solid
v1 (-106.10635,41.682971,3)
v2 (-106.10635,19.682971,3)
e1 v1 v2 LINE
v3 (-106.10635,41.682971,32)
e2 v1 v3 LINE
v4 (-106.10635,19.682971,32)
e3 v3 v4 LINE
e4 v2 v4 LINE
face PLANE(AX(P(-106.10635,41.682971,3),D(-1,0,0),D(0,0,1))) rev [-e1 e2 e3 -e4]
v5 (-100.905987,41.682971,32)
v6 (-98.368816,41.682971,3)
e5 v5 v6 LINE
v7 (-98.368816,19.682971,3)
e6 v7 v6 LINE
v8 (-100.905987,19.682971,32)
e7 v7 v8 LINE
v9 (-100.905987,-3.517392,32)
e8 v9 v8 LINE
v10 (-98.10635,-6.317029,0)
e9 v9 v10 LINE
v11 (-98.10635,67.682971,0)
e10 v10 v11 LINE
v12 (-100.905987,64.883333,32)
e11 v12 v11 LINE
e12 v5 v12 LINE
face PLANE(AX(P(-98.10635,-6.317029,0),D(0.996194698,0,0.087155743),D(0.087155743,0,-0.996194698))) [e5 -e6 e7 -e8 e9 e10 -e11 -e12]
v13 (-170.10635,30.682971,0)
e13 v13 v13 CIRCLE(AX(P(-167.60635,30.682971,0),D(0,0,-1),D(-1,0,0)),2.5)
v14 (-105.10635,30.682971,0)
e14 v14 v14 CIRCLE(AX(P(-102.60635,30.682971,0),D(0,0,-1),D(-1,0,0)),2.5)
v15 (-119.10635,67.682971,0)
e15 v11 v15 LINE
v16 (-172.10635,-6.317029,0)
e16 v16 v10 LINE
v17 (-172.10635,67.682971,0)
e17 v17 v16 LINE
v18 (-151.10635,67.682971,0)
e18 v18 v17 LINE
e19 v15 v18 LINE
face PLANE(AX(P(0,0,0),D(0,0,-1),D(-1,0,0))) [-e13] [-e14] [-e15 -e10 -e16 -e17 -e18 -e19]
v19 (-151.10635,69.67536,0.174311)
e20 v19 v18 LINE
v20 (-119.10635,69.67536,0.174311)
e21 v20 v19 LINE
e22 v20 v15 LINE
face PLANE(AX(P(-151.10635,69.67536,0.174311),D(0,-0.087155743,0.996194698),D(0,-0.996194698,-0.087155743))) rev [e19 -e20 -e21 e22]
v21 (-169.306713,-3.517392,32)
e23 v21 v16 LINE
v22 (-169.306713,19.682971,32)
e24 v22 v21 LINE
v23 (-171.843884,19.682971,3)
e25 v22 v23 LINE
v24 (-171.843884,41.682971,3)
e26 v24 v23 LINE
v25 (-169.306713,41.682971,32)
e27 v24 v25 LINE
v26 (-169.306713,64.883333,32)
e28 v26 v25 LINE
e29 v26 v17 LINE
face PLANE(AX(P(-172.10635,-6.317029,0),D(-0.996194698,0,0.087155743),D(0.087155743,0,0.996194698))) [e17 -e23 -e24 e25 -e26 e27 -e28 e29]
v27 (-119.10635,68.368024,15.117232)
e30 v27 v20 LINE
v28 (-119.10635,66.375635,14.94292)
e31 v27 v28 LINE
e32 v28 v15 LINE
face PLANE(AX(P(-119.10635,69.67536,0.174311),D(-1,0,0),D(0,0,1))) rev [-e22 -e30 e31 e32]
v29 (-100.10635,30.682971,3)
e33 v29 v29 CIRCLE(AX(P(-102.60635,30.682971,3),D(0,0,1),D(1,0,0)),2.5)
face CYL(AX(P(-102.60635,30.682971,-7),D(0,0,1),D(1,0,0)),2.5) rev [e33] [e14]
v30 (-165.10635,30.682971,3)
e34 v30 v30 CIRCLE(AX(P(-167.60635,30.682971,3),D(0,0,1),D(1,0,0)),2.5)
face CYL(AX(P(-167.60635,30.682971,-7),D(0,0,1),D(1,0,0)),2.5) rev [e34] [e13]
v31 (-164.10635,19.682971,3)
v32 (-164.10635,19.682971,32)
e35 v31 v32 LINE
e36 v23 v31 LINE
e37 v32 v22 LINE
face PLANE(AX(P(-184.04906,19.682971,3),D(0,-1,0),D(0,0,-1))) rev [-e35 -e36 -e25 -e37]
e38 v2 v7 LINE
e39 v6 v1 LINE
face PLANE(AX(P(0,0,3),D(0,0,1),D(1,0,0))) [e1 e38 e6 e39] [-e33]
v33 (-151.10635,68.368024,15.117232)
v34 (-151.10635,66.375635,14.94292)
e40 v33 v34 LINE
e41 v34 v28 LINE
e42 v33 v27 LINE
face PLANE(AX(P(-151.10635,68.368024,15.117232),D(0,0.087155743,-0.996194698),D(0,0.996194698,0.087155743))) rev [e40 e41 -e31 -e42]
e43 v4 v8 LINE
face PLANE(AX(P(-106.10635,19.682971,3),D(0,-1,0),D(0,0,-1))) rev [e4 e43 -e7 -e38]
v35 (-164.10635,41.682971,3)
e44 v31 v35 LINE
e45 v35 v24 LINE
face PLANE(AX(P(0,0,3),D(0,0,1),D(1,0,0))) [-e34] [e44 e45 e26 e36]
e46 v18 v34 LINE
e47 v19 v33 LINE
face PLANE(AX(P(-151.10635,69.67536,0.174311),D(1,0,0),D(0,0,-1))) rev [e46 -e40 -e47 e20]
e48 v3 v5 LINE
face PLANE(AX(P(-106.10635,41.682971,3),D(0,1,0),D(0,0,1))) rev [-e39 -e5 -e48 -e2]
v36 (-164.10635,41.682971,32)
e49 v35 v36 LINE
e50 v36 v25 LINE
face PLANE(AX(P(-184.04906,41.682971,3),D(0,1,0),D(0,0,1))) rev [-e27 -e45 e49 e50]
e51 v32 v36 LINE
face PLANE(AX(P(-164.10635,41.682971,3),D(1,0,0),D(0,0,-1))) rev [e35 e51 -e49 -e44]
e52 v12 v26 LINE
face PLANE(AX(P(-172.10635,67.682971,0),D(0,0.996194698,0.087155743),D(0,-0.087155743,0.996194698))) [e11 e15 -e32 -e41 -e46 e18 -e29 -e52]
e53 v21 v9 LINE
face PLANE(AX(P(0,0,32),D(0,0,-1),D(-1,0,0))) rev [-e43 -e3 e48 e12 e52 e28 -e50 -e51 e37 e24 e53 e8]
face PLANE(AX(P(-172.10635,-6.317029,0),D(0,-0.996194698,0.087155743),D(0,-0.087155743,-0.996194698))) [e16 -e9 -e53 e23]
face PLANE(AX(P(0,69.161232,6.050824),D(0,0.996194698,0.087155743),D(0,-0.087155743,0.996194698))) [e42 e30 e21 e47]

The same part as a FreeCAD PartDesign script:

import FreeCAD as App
import Part
import Sketcher
from FreeCAD import Vector
Q = App.Units.Quantity

doc = App.newDocument("Part")
body = doc.addObject("PartDesign::Body", "Body")

# Sketch on XY plane
sketch1 = doc.addObject("Sketcher::SketchObject", "Sketch")
body.addObject(sketch1)
sketch1.AttachmentSupport = (doc.XY_Plane, [""])
sketch1.MapMode = "FlatFace"
sketch1.addGeometry([
    Part.LineSegment(Vector(-172.10635, 67.682971, 0), Vector(-172.10635, -6.317029, 0)),
    Part.LineSegment(Vector(-172.10635, -6.317029, 0), Vector(-98.10635, -6.317029, 0)),
    Part.LineSegment(Vector(-98.10635, -6.317029, 0), Vector(-98.10635, 67.682971, 0)),
    Part.LineSegment(Vector(-98.10635, 67.682971, 0), Vector(-172.10635, 67.682971, 0)),
], False)
sketch1.addConstraint([
    Sketcher.Constraint("Coincident", 0, 2, 1, 1),
    Sketcher.Constraint("Coincident", 1, 2, 2, 1),
    Sketcher.Constraint("Coincident", 2, 2, 3, 1),
    Sketcher.Constraint("Coincident", 3, 2, 0, 1),
    Sketcher.Constraint("Vertical", 0),
    Sketcher.Constraint("Horizontal", 1),
    Sketcher.Constraint("Vertical", 2),
    Sketcher.Constraint("Horizontal", 3),
    Sketcher.Constraint("Equal", 3, 0),
    Sketcher.Constraint("DistanceX", 1, 1, 1, 2, Q("74 mm")),
    Sketcher.Constraint("DistanceX", 0, 2, -1, 1, Q("172.10635 mm")),
    Sketcher.Constraint("DistanceY", 0, 2, -1, 1, Q("6.317029 mm")),
])
pad1 = doc.addObject("PartDesign::Pad", "Pad")
body.addObject(pad1)
pad1.Profile = sketch1
pad1.Length = 32
pad1.TaperAngle = -5

# Sketch on XY plane
sketch2 = doc.addObject("Sketcher::SketchObject", "Sketch001")
body.addObject(sketch2)
sketch2.AttachmentSupport = (doc.XY_Plane, [""])
sketch2.MapMode = "FlatFace"
sketch2.AttachmentOffset = App.Placement(Vector(0, 0, 32), App.Rotation())
sketch2.addGeometry([
    Part.LineSegment(Vector(-184.04906, 41.682971, 0), Vector(-184.04906, 19.682971, 0)),  # 0
    Part.LineSegment(Vector(-184.04906, 19.682971, 0), Vector(-164.10635, 19.682971, 0)),  # 1
    Part.LineSegment(Vector(-164.10635, 19.682971, 0), Vector(-164.10635, 41.682971, 0)),  # 2
    Part.LineSegment(Vector(-164.10635, 41.682971, 0), Vector(-184.04906, 41.682971, 0)),  # 3
    Part.LineSegment(Vector(-106.10635, 41.682971, 0), Vector(-106.10635, 19.682971, 0)),  # 4
    Part.LineSegment(Vector(-106.10635, 19.682971, 0), Vector(-90.172401, 19.682971, 0)),  # 5
    Part.LineSegment(Vector(-90.172401, 19.682971, 0), Vector(-90.172401, 41.682971, 0)),  # 6
    Part.LineSegment(Vector(-90.172401, 41.682971, 0), Vector(-106.10635, 41.682971, 0)),  # 7
], False)
sketch2.addConstraint([
    Sketcher.Constraint("Coincident", 0, 2, 1, 1),
    Sketcher.Constraint("Coincident", 1, 2, 2, 1),
    Sketcher.Constraint("Coincident", 2, 2, 3, 1),
    Sketcher.Constraint("Coincident", 3, 2, 0, 1),
    Sketcher.Constraint("Coincident", 4, 2, 5, 1),
    Sketcher.Constraint("Coincident", 5, 2, 6, 1),
    Sketcher.Constraint("Coincident", 6, 2, 7, 1),
    Sketcher.Constraint("Coincident", 7, 2, 4, 1),
    Sketcher.Constraint("Vertical", 0),
    Sketcher.Constraint("Horizontal", 1),
    Sketcher.Constraint("Vertical", 2),
    Sketcher.Constraint("Horizontal", 3),
    Sketcher.Constraint("Vertical", 4),
    Sketcher.Constraint("Horizontal", 5),
    Sketcher.Constraint("Vertical", 6),
    Sketcher.Constraint("Horizontal", 7),
    Sketcher.Constraint("Horizontal", 1, 2, 4, 2),
    Sketcher.Constraint("Horizontal", 3, 2, 6, 2),
    Sketcher.Constraint("DistanceY", 0, 2, 0, 1, Q("22 mm")),
    Sketcher.Constraint("DistanceX", 1, 2, 4, 2, Q("58 mm")),
    Sketcher.Constraint("DistanceX", 1, 1, 1, 2, Q("19.94271 mm")),
    Sketcher.Constraint("DistanceX", 5, 1, 5, 2, Q("15.933949 mm")),
    Sketcher.Constraint("DistanceX", 5, 2, -1, 1, Q("90.172401 mm")),
    Sketcher.Constraint("DistanceY", -1, 1, 0, 2, Q("19.682971 mm")),
])
pocket1 = doc.addObject("PartDesign::Pocket", "Pocket")
body.addObject(pocket1)
pocket1.Profile = sketch2
pocket1.Length = 29

# Sketch on XY plane
sketch3 = doc.addObject("Sketcher::SketchObject", "Sketch002")
body.addObject(sketch3)
sketch3.AttachmentSupport = (doc.XY_Plane, [""])
sketch3.MapMode = "FlatFace"
sketch3.AttachmentOffset = App.Placement(Vector(0, 0, 3), App.Rotation())
sketch3.addGeometry([
    Part.Circle(Vector(-167.60635, 30.682971, 0), Vector(0, 0, 1), 2.5),
    Part.Circle(Vector(-102.60635, 30.682971, 0), Vector(0, 0, 1), 2.5),
], False)
sketch3.addConstraint([
    Sketcher.Constraint("Equal", 0, 1),
    Sketcher.Constraint("Horizontal", 0, 3, 1, 3),
    Sketcher.Constraint("Diameter", 0, Q("5 mm")),
    Sketcher.Constraint("DistanceX", 0, 3, 1, 3, Q("65 mm")),
    Sketcher.Constraint("DistanceX", 0, 3, -1, 1, Q("167.60635 mm")),
    Sketcher.Constraint("DistanceY", -1, 1, 0, 3, Q("30.682971 mm")),
])
pocket2 = doc.addObject("PartDesign::Pocket", "Pocket001")
body.addObject(pocket2)
pocket2.Profile = sketch3
pocket2.Length = 10

# Sketch on an angled plane
sketch4 = doc.addObject("Sketcher::SketchObject", "Sketch003")
body.addObject(sketch4)
sketch4.Placement = App.Placement(Vector(0, 67.168842, 5.876512), App.Rotation(Vector(1, 0, 0), Vector(0, 0.087155743, -0.996194698), Vector(0, 0.996194698, 0.087155743), "ZXY"))
sketch4.addGeometry([
    Part.LineSegment(Vector(-151.10635, 5.89896, 0), Vector(-151.10635, -9.10104, 0)),
    Part.LineSegment(Vector(-151.10635, -9.10104, 0), Vector(-119.10635, -9.10104, 0)),
    Part.LineSegment(Vector(-119.10635, -9.10104, 0), Vector(-119.10635, 5.89896, 0)),
    Part.LineSegment(Vector(-119.10635, 5.89896, 0), Vector(-151.10635, 5.89896, 0)),
], False)
sketch4.addConstraint([
    Sketcher.Constraint("Coincident", 0, 2, 1, 1),
    Sketcher.Constraint("Coincident", 1, 2, 2, 1),
    Sketcher.Constraint("Coincident", 2, 2, 3, 1),
    Sketcher.Constraint("Coincident", 3, 2, 0, 1),
    Sketcher.Constraint("Vertical", 0),
    Sketcher.Constraint("Horizontal", 1),
    Sketcher.Constraint("Vertical", 2),
    Sketcher.Constraint("Horizontal", 3),
    Sketcher.Constraint("DistanceX", 1, 1, 1, 2, Q("32 mm")),
    Sketcher.Constraint("DistanceY", 0, 2, 0, 1, Q("15 mm")),
    Sketcher.Constraint("DistanceX", 0, 2, -1, 1, Q("151.10635 mm")),
    Sketcher.Constraint("DistanceY", 0, 2, -1, 1, Q("9.10104 mm")),
])
pad2 = doc.addObject("PartDesign::Pad", "Pad001")
body.addObject(pad2)
pad2.Profile = sketch4
pad2.Length = 2

doc.recompute()
